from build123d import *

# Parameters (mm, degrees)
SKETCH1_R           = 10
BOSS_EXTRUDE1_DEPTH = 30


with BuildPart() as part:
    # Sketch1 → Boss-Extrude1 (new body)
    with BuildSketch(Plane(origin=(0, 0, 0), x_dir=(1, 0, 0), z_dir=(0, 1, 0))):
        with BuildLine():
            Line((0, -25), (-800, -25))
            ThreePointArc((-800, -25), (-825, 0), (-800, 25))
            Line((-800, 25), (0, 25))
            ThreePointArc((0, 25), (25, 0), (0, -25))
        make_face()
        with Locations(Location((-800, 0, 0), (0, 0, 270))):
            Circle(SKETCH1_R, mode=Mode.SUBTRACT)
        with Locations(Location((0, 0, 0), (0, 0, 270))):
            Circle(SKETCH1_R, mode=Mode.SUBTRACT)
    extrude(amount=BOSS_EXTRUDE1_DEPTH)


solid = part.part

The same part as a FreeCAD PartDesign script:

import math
import FreeCAD as App
import Part
import Sketcher
from FreeCAD import Vector

doc = App.newDocument("Part")
params = doc.addObject("Spreadsheet::Sheet", "Params")
for row, (alias, value) in enumerate([
    ("sketch1_diameter", "20 mm"),
    ("sketch1_radius", "25 mm"),
    ("sketch1_width", "800 mm"),
    ("pad1_length", "30 mm"),
], start=1):
    params.set(f"A{row}", alias)
    params.set(f"B{row}", "=" + value)
    params.setAlias(f"B{row}", alias)

body = doc.addObject("PartDesign::Body", "Body")

sketch1 = doc.addObject("Sketcher::SketchObject", "Sketch")
body.addObject(sketch1)
sketch1.AttachmentSupport = (doc.XZ_Plane, [""])
sketch1.MapMode = "FlatFace"
sketch1.addGeometry([
    Part.LineSegment(Vector(-800, 25, 0), Vector(0, 25, 0)),
    Part.ArcOfCircle(Part.Circle(Vector(0, 0, 0), Vector(0, 0, 1), 25), math.radians(-90), math.radians(90)),
    Part.LineSegment(Vector(0, -25, 0), Vector(-800, -25, 0)),
    Part.ArcOfCircle(Part.Circle(Vector(-800, 0, 0), Vector(0, 0, 1), 25), math.radians(90), math.radians(270)),
    Part.Circle(Vector(0, 0, 0), Vector(0, 0, 1), 10),
    Part.Circle(Vector(-800, 0, 0), Vector(0, 0, 1), 10),
], False)
sketch1.addConstraint([
    Sketcher.Constraint("Tangent", 0, 2, 1, 2),
    Sketcher.Constraint("Tangent", 1, 1, 2, 1),
    Sketcher.Constraint("Tangent", 2, 2, 3, 2),
    Sketcher.Constraint("Tangent", 3, 1, 0, 1),
    Sketcher.Constraint("Horizontal", 0),
    Sketcher.Constraint("Horizontal", 2),
    Sketcher.Constraint("Coincident", 1, 3, -1, 1),
    Sketcher.Constraint("Coincident", 4, 3, -1, 1),
    Sketcher.Constraint("Coincident", 5, 3, 3, 3),
    Sketcher.Constraint("Equal", 4, 5),
    Sketcher.Constraint("Diameter", 4, 20.0),
    Sketcher.Constraint("Radius", 1, 25.0),
    Sketcher.Constraint("DistanceX", 0, 1, 0, 2, 800.0),
])
sketch1.setExpression("Constraints[10]", "Params.sketch1_diameter")
sketch1.setExpression("Constraints[11]", "Params.sketch1_radius")
sketch1.setExpression("Constraints[12]", "Params.sketch1_width")
pad1 = doc.addObject("PartDesign::Pad", "Pad")
body.addObject(pad1)
pad1.Profile = sketch1
pad1.setExpression("Length", "Params.pad1_length")
pad1.Reversed = True

doc.recompute()
